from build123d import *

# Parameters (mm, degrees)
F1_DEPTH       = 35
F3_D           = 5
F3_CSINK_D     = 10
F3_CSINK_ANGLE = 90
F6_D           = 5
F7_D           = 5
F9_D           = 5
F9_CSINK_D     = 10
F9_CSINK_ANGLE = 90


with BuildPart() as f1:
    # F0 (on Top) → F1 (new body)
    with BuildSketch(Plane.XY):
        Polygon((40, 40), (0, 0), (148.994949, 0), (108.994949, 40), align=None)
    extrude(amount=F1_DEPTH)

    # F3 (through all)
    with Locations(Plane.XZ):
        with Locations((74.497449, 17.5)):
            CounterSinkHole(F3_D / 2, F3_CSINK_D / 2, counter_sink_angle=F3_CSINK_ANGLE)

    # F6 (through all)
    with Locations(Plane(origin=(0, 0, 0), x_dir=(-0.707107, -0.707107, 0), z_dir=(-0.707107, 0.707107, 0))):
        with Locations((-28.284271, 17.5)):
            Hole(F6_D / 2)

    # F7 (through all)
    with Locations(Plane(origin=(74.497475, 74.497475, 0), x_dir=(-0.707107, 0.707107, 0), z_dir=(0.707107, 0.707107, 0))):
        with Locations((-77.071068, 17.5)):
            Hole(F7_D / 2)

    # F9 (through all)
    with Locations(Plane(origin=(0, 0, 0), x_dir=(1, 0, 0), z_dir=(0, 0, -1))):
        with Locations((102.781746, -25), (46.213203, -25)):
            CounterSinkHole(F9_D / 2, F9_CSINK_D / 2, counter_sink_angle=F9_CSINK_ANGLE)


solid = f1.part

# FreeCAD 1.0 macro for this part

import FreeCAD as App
import Part
import Sketcher

V = App.Vector
Q = App.Units.Quantity


def add_polygon(sketch, points):
    """Adds a closed chain of lines whose ends are joined by coincident constraints."""
    first, n = sketch.GeometryCount, len(points)
    for a, b in zip(points, points[1:] + points[:1]):
        sketch.addGeometry(Part.LineSegment(App.Vector(*a, 0), App.Vector(*b, 0)), False)
    for i in range(n):
        sketch.addConstraint(Sketcher.Constraint("Coincident", first + i, 2, first + (i + 1) % n, 1))

doc = App.newDocument("Part")
body = doc.addObject("PartDesign::Body", "Body")

# Sketch on XY plane
sketch1 = body.newObject("Sketcher::SketchObject", "Sketch")
sketch1.AttachmentSupport = (doc.getObject("XY_Plane"), [""])
sketch1.MapMode = "FlatFace"
add_polygon(sketch1, [(40, 40), (0, 0), (148.994949, 0), (108.994949, 40)])  # lines 0-3
sketch1.addConstraint([
    Sketcher.Constraint("Horizontal", 1),
    Sketcher.Constraint("Horizontal", 3),
    Sketcher.Constraint("Coincident", 0, 2, -1, 1),
    Sketcher.Constraint("Perpendicular", 0, 2),
    Sketcher.Constraint("Equal", 0, 2),
    Sketcher.Constraint("DistanceY", -1, 1, 2, 2, Q("40 mm")),
    Sketcher.Constraint("DistanceX", 1, 1, 1, 2, Q("148.994949 mm")),
])
pad1 = body.newObject("PartDesign::Pad", "Pad")
pad1.Profile = sketch1
pad1.Length = 35

# Sketch on XZ plane
sketch2 = body.newObject("Sketcher::SketchObject", "Sketch001")
sketch2.AttachmentSupport = (doc.getObject("XZ_Plane"), [""])
sketch2.MapMode = "FlatFace"
sketch2.addGeometry(Part.Circle(V(74.497449, 17.5, 0), V(0, 0, 1), 2.5), False)
sketch2.addConstraint([
    Sketcher.Constraint("Diameter", 0, Q("5 mm")),
    Sketcher.Constraint("DistanceY", -1, 1, 0, 3, Q("17.5 mm")),
    Sketcher.Constraint("DistanceX", -1, 1, 0, 3, Q("74.497449 mm")),
])
doc.recompute()
hole = body.newObject("PartDesign::Hole", "Hole")
hole.Profile = sketch2
hole.ThreadType = "None"
hole.Diameter = 5
hole.DepthType = "ThroughAll"
hole.HoleCutType = "Countersink"
hole.HoleCutDiameter = 10
hole.HoleCutCountersinkAngle = 90

# Sketch on an angled plane
sketch3 = body.newObject("Sketcher::SketchObject", "Sketch002")
sketch3.Placement = App.Placement(V(0, 0, 0), App.Rotation(V(-0.707106781, -0.707106781, 0), V(0, 0, 0.999999999), V(-0.707106781, 0.707106781, 0), "ZXY"))
sketch3.addGeometry(Part.Circle(V(-28.284271, 17.5, 0), V(0, 0, 1), 2.5), False)
sketch3.addConstraint([
    Sketcher.Constraint("Diameter", 0, Q("5 mm")),
    Sketcher.Constraint("DistanceY", -1, 1, 0, 3, Q("17.5 mm")),
    Sketcher.Constraint("DistanceX", 0, 3, -1, 1, Q("28.284271 mm")),
])
doc.recompute()
hole2 = body.newObject("PartDesign::Hole", "Hole001")
hole2.Profile = sketch3
hole2.ThreadType = "None"
hole2.Diameter = 5
hole2.DepthType = "ThroughAll"

# Sketch on an angled plane
sketch4 = body.newObject("Sketcher::SketchObject", "Sketch003")
sketch4.Placement = App.Placement(V(74.497475, 74.497475, 0), App.Rotation(V(-0.707106781, 0.707106781, 0), V(0, 0, 0.999999999), V(0.707106781, 0.707106781, 0), "ZXY"))
sketch4.addGeometry(Part.Circle(V(-77.071068, 17.5, 0), V(0, 0, 1), 2.5), False)
sketch4.addConstraint([
    Sketcher.Constraint("Diameter", 0, Q("5 mm")),
    Sketcher.Constraint("DistanceY", -1, 1, 0, 3, Q("17.5 mm")),
    Sketcher.Constraint("DistanceX", 0, 3, -1, 1, Q("77.071068 mm")),
])
doc.recompute()
hole3 = body.newObject("PartDesign::Hole", "Hole002")
hole3.Profile = sketch4
hole3.ThreadType = "None"
hole3.Diameter = 5
hole3.DepthType = "ThroughAll"

# Sketch on XY plane
sketch5 = body.newObject("Sketcher::SketchObject", "Sketch004")
sketch5.AttachmentSupport = (doc.getObject("XY_Plane"), [""])
sketch5.MapMode = "FlatFace"
sketch5.addGeometry([
    Part.Circle(V(102.781746, 25, 0), V(0, 0, 1), 2.5),
    Part.Circle(V(46.213203, 25, 0), V(0, 0, 1), 2.5),
], False)
sketch5.addConstraint([
    Sketcher.Constraint("Equal", 0, 1),
    Sketcher.Constraint("Horizontal", 0, 3, 1, 3),
    Sketcher.Constraint("Diameter", 0, Q("5 mm")),
    Sketcher.Constraint("DistanceY", -1, 1, 0, 3, Q("25 mm")),
    Sketcher.Constraint("DistanceX", -1, 1, 0, 3, Q("102.781746 mm")),
    Sketcher.Constraint("DistanceX", -1, 1, 1, 3, Q("46.213203 mm")),
])
doc.recompute()
hole4 = body.newObject("PartDesign::Hole", "Hole003")
hole4.Profile = sketch5
hole4.ThreadType = "None"
hole4.Diameter = 5
hole4.DepthType = "ThroughAll"
hole4.HoleCutType = "Countersink"
hole4.HoleCutDiameter = 10
hole4.HoleCutCountersinkAngle = 90
hole4.Reversed = True

doc.recompute()
